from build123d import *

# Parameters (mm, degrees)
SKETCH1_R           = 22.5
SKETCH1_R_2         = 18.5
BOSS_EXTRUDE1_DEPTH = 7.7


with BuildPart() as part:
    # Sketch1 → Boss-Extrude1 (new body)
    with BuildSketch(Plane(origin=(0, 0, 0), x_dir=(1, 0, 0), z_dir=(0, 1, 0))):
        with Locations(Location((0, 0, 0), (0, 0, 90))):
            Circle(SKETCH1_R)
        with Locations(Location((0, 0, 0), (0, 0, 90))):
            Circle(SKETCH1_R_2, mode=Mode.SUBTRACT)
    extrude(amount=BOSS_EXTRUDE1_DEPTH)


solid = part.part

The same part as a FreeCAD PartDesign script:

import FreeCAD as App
import Part
import Sketcher
from FreeCAD import Vector
Q = App.Units.Quantity

doc = App.newDocument("Part")
params = doc.addObject("Spreadsheet::Sheet", "Params")
for row, (alias, value) in enumerate([
    ("sketch1_diameter", "45 mm"),
    ("sketch1_diameter2", "37 mm"),
    ("pad1_length", "7.7 mm"),
], start=1):
    params.set(f"A{row}", alias)
    params.set(f"B{row}", "=" + value)
    params.setAlias(f"B{row}", alias)

body = doc.addObject("PartDesign::Body", "Body")

# Sketch on XZ plane
sketch1 = body.newObject("Sketcher::SketchObject", "Sketch")
sketch1.AttachmentSupport = (doc.getObject("XZ_Plane"), [""])
sketch1.MapMode = "FlatFace"
sketch1.addGeometry(Part.Circle(Vector(0, 0, 0), Vector(0, 0, 1), 22), False)
sketch1.addGeometry(Part.Circle(Vector(0, 0, 0), Vector(0, 0, 1), 18), False)
sketch1.addConstraint(Sketcher.Constraint("Coincident", 0, 3, -1, 1))
sketch1.addConstraint(Sketcher.Constraint("Coincident", 1, 3, -1, 1))
sketch1.addConstraint(Sketcher.Constraint("Diameter", 0, Q("45 mm")))
sketch1.addConstraint(Sketcher.Constraint("Diameter", 1, Q("37 mm")))
sketch1.setExpression("Constraints[2]", "Params.sketch1_diameter")
sketch1.setExpression("Constraints[3]", "Params.sketch1_diameter2")
pad1 = body.newObject("PartDesign::Pad", "Pad")
pad1.Profile = sketch1
pad1.setExpression("Length", "Params.pad1_length")
pad1.Reversed = True

doc.recompute()
